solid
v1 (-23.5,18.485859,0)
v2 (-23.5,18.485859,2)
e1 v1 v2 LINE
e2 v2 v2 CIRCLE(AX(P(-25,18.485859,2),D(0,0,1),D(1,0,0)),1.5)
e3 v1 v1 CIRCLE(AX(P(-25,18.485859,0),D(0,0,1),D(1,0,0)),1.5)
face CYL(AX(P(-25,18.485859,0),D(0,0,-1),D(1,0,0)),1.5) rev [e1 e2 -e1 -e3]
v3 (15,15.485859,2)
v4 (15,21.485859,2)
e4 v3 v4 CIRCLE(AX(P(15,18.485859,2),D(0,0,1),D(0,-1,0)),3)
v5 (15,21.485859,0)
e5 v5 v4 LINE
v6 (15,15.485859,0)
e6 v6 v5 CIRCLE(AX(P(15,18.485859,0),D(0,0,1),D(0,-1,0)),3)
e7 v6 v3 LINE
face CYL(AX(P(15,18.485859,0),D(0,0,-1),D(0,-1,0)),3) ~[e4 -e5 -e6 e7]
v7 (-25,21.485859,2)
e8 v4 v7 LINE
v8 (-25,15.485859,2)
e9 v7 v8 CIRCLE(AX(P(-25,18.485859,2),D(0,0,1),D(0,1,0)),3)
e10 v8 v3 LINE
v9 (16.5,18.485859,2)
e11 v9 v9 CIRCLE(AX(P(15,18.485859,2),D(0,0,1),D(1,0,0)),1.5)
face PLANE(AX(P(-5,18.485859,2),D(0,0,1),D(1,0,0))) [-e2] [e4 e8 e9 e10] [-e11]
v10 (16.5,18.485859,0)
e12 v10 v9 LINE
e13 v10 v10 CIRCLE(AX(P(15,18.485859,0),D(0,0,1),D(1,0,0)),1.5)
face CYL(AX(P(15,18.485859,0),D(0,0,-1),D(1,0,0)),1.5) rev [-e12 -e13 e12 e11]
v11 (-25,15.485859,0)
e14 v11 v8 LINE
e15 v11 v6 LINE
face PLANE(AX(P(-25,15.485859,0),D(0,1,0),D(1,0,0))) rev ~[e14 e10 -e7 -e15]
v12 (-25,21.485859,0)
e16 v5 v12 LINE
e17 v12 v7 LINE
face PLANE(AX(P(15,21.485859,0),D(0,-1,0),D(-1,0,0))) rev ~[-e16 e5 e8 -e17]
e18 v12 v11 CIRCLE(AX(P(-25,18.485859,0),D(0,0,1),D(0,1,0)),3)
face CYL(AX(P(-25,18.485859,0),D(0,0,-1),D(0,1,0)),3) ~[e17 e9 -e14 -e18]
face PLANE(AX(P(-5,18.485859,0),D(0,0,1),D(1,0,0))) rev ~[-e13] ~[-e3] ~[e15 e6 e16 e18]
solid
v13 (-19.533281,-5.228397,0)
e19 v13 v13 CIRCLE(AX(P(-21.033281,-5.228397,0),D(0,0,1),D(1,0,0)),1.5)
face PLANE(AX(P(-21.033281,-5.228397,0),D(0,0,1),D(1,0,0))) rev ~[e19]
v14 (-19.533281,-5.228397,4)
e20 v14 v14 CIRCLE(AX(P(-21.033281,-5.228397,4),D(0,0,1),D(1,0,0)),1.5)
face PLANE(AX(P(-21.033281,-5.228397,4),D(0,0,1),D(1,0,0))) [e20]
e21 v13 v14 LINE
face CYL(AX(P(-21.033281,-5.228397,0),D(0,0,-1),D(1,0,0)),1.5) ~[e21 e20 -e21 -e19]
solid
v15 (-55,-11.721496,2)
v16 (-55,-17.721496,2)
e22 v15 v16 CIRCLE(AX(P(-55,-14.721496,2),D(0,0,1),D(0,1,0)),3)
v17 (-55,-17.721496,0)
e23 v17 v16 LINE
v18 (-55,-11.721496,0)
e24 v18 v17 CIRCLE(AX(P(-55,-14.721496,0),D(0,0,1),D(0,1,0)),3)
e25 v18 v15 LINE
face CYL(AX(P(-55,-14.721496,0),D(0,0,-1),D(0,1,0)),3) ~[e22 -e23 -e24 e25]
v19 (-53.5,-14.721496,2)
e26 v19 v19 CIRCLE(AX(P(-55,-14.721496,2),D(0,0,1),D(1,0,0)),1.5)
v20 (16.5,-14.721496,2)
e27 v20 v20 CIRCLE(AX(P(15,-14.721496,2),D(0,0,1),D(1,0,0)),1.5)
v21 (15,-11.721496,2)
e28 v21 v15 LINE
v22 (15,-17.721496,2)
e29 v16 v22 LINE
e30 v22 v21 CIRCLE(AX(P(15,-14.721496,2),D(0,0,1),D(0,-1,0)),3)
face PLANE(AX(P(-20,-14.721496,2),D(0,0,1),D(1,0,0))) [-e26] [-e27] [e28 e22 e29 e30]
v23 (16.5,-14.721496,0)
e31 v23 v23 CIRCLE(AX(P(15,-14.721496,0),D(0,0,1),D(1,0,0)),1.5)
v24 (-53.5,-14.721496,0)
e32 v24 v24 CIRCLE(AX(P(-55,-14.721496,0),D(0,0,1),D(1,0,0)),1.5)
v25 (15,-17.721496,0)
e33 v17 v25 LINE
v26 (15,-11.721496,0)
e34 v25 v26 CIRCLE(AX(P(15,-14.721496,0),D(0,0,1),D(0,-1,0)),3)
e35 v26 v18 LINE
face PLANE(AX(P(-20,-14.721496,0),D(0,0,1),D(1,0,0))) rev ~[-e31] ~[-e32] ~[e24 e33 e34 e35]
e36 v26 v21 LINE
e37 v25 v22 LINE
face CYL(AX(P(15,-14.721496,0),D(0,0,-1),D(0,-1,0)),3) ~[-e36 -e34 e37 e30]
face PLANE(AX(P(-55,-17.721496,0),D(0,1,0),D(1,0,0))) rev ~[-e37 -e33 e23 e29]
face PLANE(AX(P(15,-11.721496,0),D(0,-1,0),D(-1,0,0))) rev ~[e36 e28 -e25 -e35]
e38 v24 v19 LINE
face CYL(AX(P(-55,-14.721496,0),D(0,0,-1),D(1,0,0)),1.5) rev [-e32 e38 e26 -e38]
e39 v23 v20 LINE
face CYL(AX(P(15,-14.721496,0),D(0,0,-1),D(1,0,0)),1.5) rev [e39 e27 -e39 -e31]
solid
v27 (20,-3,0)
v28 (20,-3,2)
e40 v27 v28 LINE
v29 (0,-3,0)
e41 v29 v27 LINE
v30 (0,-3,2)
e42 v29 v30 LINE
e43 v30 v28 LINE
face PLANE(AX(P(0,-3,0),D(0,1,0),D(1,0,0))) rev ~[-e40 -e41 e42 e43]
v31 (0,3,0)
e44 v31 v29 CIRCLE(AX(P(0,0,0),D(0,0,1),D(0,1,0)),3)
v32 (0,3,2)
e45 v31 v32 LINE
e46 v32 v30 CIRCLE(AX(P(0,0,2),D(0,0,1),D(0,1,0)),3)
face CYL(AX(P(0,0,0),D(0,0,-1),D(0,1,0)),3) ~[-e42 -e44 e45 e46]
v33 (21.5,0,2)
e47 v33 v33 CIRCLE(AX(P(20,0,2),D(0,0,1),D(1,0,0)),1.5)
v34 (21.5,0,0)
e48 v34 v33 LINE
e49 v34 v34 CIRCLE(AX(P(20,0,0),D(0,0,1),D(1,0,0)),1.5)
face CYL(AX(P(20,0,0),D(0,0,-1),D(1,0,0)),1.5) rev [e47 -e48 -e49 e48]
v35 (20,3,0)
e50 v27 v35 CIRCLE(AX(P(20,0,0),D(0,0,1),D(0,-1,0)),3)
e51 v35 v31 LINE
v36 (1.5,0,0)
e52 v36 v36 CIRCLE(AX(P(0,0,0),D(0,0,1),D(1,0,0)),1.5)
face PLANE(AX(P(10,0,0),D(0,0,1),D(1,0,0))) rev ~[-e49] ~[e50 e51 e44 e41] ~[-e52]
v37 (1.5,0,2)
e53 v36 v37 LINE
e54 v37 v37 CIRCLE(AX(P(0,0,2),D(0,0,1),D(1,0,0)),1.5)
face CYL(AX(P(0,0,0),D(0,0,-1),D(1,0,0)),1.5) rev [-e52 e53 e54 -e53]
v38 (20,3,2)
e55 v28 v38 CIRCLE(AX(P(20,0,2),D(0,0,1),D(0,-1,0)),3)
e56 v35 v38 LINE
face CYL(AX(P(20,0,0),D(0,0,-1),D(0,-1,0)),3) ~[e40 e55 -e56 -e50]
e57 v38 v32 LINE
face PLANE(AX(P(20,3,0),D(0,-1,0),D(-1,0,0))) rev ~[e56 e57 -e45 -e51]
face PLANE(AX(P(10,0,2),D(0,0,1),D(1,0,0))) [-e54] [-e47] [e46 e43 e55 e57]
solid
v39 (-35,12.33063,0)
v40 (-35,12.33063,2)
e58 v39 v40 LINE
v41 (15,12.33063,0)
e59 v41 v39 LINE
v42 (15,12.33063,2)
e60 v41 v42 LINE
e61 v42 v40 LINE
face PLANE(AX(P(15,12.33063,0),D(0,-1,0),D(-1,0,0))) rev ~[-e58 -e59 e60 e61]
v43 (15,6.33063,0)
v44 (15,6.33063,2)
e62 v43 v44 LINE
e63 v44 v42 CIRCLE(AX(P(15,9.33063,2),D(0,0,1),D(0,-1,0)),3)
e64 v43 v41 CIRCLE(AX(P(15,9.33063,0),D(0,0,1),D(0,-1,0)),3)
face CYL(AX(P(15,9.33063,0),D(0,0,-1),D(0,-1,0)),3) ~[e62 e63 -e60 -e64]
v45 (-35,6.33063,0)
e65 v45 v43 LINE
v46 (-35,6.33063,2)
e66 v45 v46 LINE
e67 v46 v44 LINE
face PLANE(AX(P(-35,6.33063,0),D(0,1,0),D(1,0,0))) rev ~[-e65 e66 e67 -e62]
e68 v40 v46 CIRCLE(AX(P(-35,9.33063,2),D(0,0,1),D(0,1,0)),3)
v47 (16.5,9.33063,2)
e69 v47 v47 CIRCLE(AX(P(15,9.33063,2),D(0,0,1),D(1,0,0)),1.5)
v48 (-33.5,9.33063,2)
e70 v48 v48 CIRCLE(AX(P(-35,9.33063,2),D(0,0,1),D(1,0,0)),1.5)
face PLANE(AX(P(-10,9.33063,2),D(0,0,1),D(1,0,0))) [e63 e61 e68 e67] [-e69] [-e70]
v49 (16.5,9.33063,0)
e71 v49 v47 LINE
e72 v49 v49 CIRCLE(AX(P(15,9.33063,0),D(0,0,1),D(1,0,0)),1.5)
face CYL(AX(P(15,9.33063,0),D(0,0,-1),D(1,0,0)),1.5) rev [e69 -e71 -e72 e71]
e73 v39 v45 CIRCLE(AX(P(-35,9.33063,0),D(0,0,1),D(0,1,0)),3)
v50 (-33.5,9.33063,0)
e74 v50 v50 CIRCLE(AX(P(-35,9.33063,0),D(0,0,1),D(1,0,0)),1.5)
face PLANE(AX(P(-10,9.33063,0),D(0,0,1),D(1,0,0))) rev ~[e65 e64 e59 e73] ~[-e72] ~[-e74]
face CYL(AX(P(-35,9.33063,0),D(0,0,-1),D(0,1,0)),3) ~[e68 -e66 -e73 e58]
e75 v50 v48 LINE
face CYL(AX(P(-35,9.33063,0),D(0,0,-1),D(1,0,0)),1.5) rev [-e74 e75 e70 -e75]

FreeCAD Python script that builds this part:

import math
import FreeCAD as App
import Part
import Sketcher

doc = App.newDocument("Part")
body = doc.addObject("PartDesign::Body", "Body")

sketch1 = body.newObject("Sketcher::SketchObject", "Sketch")
sketch1.AttachmentSupport = (doc.getObject("XY_Plane"), [""])
sketch1.MapMode = "FlatFace"
sketch1.addGeometry([
    Part.LineSegment(App.Vector(20, 3, 0), App.Vector(0, 3, 0)),
    Part.ArcOfCircle(Part.Circle(App.Vector(0, 0, 0), App.Vector(0, 0, 1), 3), math.radians(90), math.radians(270)),
    Part.LineSegment(App.Vector(0, -3, 0), App.Vector(20, -3, 0)),
    Part.ArcOfCircle(Part.Circle(App.Vector(20, 0, 0), App.Vector(0, 0, 1), 3), math.radians(-90), math.radians(90)),
    Part.Circle(App.Vector(0, 0, 0), App.Vector(0, 0, 1), 1.5),
    Part.Circle(App.Vector(20, 0, 0), App.Vector(0, 0, 1), 1.5),
], False)
sketch1.addConstraint([
    Sketcher.Constraint("Tangent", 0, 2, 1, 1),
    Sketcher.Constraint("Tangent", 1, 2, 2, 1),
    Sketcher.Constraint("Tangent", 2, 2, 3, 1),
    Sketcher.Constraint("Tangent", 3, 2, 0, 1),
    Sketcher.Constraint("Horizontal", 0),
    Sketcher.Constraint("Horizontal", 2),
    Sketcher.Constraint("Coincident", 1, 3, -1, 1),
    Sketcher.Constraint("Coincident", 4, 3, -1, 1),
    Sketcher.Constraint("Coincident", 5, 3, 3, 3),
    Sketcher.Constraint("Equal", 4, 5),
    Sketcher.Constraint("Diameter", 4, 3.0),
    Sketcher.Constraint("Radius", 1, 3.0),
    Sketcher.Constraint("DistanceX", 0, 2, 0, 1, 20.0),
])
pad1 = body.newObject("PartDesign::Pad", "Pad")
pad1.Profile = sketch1
pad1.Length = 2
body2 = doc.addObject("PartDesign::Body", "Body001")

sketch2 = body2.newObject("Sketcher::SketchObject", "Sketch001")
sketch2.AttachmentSupport = (doc.getObject("XY_Plane001"), [""])
sketch2.MapMode = "FlatFace"
sketch2.addGeometry([
    Part.LineSegment(App.Vector(15, 21.485859, 0), App.Vector(-25, 21.485859, 0)),
    Part.ArcOfCircle(Part.Circle(App.Vector(-25, 18.485859, 0), App.Vector(0, 0, 1), 3), math.radians(90), math.radians(270)),
    Part.LineSegment(App.Vector(-25, 15.485859, 0), App.Vector(15, 15.485859, 0)),
    Part.ArcOfCircle(Part.Circle(App.Vector(15, 18.485859, 0), App.Vector(0, 0, 1), 3), math.radians(-90), math.radians(90)),
    Part.Circle(App.Vector(-25, 18.485859, 0), App.Vector(0, 0, 1), 1.5),
    Part.Circle(App.Vector(15, 18.485859, 0), App.Vector(0, 0, 1), 1.5),
], False)
sketch2.addConstraint([
    Sketcher.Constraint("Tangent", 0, 2, 1, 1),
    Sketcher.Constraint("Tangent", 1, 2, 2, 1),
    Sketcher.Constraint("Tangent", 2, 2, 3, 1),
    Sketcher.Constraint("Tangent", 3, 2, 0, 1),
    Sketcher.Constraint("Horizontal", 0),
    Sketcher.Constraint("Horizontal", 2),
    Sketcher.Constraint("Coincident", 4, 3, 1, 3),
    Sketcher.Constraint("Coincident", 5, 3, 3, 3),
    Sketcher.Constraint("Equal", 4, 5),
    Sketcher.Constraint("Diameter", 4, 3.0),
    Sketcher.Constraint("Radius", 1, 3.0),
    Sketcher.Constraint("DistanceX", 0, 2, 0, 1, 40.0),
    Sketcher.Constraint("DistanceX", 1, 3, -1, 1, 25.0),
    Sketcher.Constraint("DistanceY", -1, 1, 1, 3, 18.485859),
])
pad2 = body2.newObject("PartDesign::Pad", "Pad001")
pad2.Profile = sketch2
pad2.Length = 2
body3 = doc.addObject("PartDesign::Body", "Body002")

sketch3 = body3.newObject("Sketcher::SketchObject", "Sketch002")
sketch3.AttachmentSupport = (doc.getObject("XY_Plane002"), [""])
sketch3.MapMode = "FlatFace"
sketch3.addGeometry([
    Part.LineSegment(App.Vector(15, -11.721496, 0), App.Vector(-55, -11.721496, 0)),
    Part.ArcOfCircle(Part.Circle(App.Vector(-55, -14.721496, 0), App.Vector(0, 0, 1), 3), math.radians(90), math.radians(270)),
    Part.LineSegment(App.Vector(-55, -17.721496, 0), App.Vector(15, -17.721496, 0)),
    Part.ArcOfCircle(Part.Circle(App.Vector(15, -14.721496, 0), App.Vector(0, 0, 1), 3), math.radians(-90), math.radians(90)),
    Part.Circle(App.Vector(-55, -14.721496, 0), App.Vector(0, 0, 1), 1.5),
    Part.Circle(App.Vector(15, -14.721496, 0), App.Vector(0, 0, 1), 1.5),
], False)
sketch3.addConstraint([
    Sketcher.Constraint("Tangent", 0, 2, 1, 1),
    Sketcher.Constraint("Tangent", 1, 2, 2, 1),
    Sketcher.Constraint("Tangent", 2, 2, 3, 1),
    Sketcher.Constraint("Tangent", 3, 2, 0, 1),
    Sketcher.Constraint("Horizontal", 0),
    Sketcher.Constraint("Horizontal", 2),
    Sketcher.Constraint("Coincident", 4, 3, 1, 3),
    Sketcher.Constraint("Coincident", 5, 3, 3, 3),
    Sketcher.Constraint("Equal", 4, 5),
    Sketcher.Constraint("Diameter", 4, 3.0),
    Sketcher.Constraint("Radius", 1, 3.0),
    Sketcher.Constraint("DistanceX", 0, 2, 0, 1, 70.0),
    Sketcher.Constraint("DistanceX", 1, 3, -1, 1, 55.0),
    Sketcher.Constraint("DistanceY", 1, 3, -1, 1, 14.721496),
])
pad3 = body3.newObject("PartDesign::Pad", "Pad002")
pad3.Profile = sketch3
pad3.Length = 2
body4 = doc.addObject("PartDesign::Body", "Body003")

sketch4 = body4.newObject("Sketcher::SketchObject", "Sketch003")
sketch4.AttachmentSupport = (doc.getObject("XY_Plane003"), [""])
sketch4.MapMode = "FlatFace"
sketch4.addGeometry([
    Part.LineSegment(App.Vector(15, 12.33063, 0), App.Vector(-35, 12.33063, 0)),
    Part.ArcOfCircle(Part.Circle(App.Vector(-35, 9.33063, 0), App.Vector(0, 0, 1), 3), math.radians(90), math.radians(270)),
    Part.LineSegment(App.Vector(-35, 6.33063, 0), App.Vector(15, 6.33063, 0)),
    Part.ArcOfCircle(Part.Circle(App.Vector(15, 9.33063, 0), App.Vector(0, 0, 1), 3), math.radians(-90), math.radians(90)),
    Part.Circle(App.Vector(-35, 9.33063, 0), App.Vector(0, 0, 1), 1.5),
    Part.Circle(App.Vector(15, 9.33063, 0), App.Vector(0, 0, 1), 1.5),
], False)
sketch4.addConstraint([
    Sketcher.Constraint("Tangent", 0, 2, 1, 1),
    Sketcher.Constraint("Tangent", 1, 2, 2, 1),
    Sketcher.Constraint("Tangent", 2, 2, 3, 1),
    Sketcher.Constraint("Tangent", 3, 2, 0, 1),
    Sketcher.Constraint("Horizontal", 0),
    Sketcher.Constraint("Horizontal", 2),
    Sketcher.Constraint("Coincident", 4, 3, 1, 3),
    Sketcher.Constraint("Coincident", 5, 3, 3, 3),
    Sketcher.Constraint("Equal", 4, 5),
    Sketcher.Constraint("Diameter", 4, 3.0),
    Sketcher.Constraint("Radius", 1, 3.0),
    Sketcher.Constraint("DistanceX", 0, 2, 0, 1, 50.0),
    Sketcher.Constraint("DistanceX", 1, 3, -1, 1, 35.0),
    Sketcher.Constraint("DistanceY", -1, 1, 1, 3, 9.33063),
])
pad4 = body4.newObject("PartDesign::Pad", "Pad003")
pad4.Profile = sketch4
pad4.Length = 2
body5 = doc.addObject("PartDesign::Body", "Body004")

sketch5 = body5.newObject("Sketcher::SketchObject", "Sketch004")
sketch5.AttachmentSupport = (doc.getObject("XY_Plane004"), [""])
sketch5.MapMode = "FlatFace"
sketch5.addGeometry(Part.Circle(App.Vector(-21.033281, -5.228397, 0), App.Vector(0, 0, 1), 1.5), False)
sketch5.addConstraint([
    Sketcher.Constraint("Diameter", 0, 3.0),
    Sketcher.Constraint("DistanceX", 0, 3, -1, 1, 21.033281),
    Sketcher.Constraint("DistanceY", 0, 3, -1, 1, 5.228397),
])
pad5 = body5.newObject("PartDesign::Pad", "Pad004")
pad5.Profile = sketch5
pad5.Length = 4

doc.recompute()
